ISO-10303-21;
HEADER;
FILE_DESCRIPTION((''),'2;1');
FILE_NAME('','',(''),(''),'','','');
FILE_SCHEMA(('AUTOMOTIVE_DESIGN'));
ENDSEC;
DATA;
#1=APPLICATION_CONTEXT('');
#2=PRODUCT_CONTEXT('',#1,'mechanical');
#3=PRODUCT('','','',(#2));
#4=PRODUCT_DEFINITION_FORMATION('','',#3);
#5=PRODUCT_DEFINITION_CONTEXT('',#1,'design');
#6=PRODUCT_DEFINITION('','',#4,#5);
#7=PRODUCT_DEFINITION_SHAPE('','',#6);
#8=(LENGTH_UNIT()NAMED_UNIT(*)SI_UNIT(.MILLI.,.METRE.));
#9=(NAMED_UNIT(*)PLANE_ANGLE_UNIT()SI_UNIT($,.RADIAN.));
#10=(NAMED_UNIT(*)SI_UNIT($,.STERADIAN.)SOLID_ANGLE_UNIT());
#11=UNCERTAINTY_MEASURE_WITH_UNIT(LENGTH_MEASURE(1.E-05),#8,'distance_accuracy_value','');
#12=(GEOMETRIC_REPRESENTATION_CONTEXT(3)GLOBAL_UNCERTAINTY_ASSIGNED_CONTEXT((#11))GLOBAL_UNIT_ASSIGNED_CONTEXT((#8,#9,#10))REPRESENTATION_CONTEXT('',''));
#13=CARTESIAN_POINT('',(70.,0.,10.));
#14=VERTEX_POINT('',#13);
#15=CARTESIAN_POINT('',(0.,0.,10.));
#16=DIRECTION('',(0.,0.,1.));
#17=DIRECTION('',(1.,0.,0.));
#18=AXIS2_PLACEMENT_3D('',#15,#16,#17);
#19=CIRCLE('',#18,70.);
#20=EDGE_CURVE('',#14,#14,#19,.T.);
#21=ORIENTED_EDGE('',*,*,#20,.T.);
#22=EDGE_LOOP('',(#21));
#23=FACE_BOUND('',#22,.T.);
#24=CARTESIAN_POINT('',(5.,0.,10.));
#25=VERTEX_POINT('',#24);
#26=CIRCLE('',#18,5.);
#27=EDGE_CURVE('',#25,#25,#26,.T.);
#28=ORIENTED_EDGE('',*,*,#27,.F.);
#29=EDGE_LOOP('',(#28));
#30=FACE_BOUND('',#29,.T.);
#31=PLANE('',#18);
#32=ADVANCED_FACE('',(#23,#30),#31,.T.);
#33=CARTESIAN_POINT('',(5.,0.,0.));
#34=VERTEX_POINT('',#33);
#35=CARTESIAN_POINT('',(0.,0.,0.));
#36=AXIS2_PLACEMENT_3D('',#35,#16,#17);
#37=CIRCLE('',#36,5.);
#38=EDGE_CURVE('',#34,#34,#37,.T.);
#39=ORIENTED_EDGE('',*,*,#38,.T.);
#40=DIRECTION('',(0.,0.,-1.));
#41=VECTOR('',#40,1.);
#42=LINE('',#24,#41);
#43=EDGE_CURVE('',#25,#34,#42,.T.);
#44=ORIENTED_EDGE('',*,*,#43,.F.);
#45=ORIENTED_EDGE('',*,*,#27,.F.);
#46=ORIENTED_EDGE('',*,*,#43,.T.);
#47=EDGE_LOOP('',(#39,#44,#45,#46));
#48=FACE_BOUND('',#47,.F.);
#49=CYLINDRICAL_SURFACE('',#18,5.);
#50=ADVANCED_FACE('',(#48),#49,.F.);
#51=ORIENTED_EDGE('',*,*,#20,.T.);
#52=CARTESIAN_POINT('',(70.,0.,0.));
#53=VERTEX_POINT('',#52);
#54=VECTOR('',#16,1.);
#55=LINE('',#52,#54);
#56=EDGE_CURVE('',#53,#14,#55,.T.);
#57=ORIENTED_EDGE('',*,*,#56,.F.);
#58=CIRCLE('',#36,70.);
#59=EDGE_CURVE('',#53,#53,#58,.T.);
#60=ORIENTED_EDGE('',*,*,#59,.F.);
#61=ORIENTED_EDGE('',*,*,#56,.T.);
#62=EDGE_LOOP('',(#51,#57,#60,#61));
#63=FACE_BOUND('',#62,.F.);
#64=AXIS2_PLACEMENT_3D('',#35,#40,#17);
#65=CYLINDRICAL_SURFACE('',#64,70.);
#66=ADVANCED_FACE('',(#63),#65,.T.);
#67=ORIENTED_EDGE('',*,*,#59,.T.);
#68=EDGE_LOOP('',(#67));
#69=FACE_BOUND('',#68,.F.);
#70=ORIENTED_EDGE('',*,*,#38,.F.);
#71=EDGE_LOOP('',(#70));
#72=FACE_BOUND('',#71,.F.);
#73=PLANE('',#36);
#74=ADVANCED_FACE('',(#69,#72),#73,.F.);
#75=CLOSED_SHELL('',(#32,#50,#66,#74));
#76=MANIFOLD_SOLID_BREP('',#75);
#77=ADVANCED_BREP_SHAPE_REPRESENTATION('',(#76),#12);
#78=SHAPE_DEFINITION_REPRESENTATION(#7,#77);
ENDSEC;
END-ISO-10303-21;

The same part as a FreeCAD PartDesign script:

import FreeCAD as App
import Part
import Sketcher

doc = App.newDocument("Part")
body = doc.addObject("PartDesign::Body", "Body")

# Sketch on XY plane
sketch1 = body.newObject("Sketcher::SketchObject", "Sketch")
sketch1.AttachmentSupport = (doc.getObject("XY_Plane"), [""])
sketch1.MapMode = "FlatFace"
sketch1.addGeometry(Part.Circle(App.Vector(0, 0, 0), App.Vector(0, 0, 1), 70), False)
sketch1.addConstraint(Sketcher.Constraint("Coincident", 0, 3, -1, 1))
sketch1.addConstraint(Sketcher.Constraint("Diameter", 0, 140.0))
pad1 = body.newObject("PartDesign::Pad", "Pad")
pad1.Profile = sketch1
pad1.Length = 10

# Sketch on XY plane
sketch2 = body.newObject("Sketcher::SketchObject", "Sketch001")
sketch2.AttachmentSupport = (doc.getObject("XY_Plane"), [""])
sketch2.MapMode = "FlatFace"
sketch2.AttachmentOffset = App.Placement(App.Vector(0, 0, 10), App.Rotation())
sketch2.addGeometry(Part.Circle(App.Vector(0, 0, 0), App.Vector(0, 0, 1), 5), False)
sketch2.addConstraint(Sketcher.Constraint("Coincident", 0, 3, -1, 1))
sketch2.addConstraint(Sketcher.Constraint("Diameter", 0, 10.0))
pocket1 = body.newObject("PartDesign::Pocket", "Pocket")
pocket1.Profile = sketch2
pocket1.Type = "ThroughAll"

doc.recompute()
